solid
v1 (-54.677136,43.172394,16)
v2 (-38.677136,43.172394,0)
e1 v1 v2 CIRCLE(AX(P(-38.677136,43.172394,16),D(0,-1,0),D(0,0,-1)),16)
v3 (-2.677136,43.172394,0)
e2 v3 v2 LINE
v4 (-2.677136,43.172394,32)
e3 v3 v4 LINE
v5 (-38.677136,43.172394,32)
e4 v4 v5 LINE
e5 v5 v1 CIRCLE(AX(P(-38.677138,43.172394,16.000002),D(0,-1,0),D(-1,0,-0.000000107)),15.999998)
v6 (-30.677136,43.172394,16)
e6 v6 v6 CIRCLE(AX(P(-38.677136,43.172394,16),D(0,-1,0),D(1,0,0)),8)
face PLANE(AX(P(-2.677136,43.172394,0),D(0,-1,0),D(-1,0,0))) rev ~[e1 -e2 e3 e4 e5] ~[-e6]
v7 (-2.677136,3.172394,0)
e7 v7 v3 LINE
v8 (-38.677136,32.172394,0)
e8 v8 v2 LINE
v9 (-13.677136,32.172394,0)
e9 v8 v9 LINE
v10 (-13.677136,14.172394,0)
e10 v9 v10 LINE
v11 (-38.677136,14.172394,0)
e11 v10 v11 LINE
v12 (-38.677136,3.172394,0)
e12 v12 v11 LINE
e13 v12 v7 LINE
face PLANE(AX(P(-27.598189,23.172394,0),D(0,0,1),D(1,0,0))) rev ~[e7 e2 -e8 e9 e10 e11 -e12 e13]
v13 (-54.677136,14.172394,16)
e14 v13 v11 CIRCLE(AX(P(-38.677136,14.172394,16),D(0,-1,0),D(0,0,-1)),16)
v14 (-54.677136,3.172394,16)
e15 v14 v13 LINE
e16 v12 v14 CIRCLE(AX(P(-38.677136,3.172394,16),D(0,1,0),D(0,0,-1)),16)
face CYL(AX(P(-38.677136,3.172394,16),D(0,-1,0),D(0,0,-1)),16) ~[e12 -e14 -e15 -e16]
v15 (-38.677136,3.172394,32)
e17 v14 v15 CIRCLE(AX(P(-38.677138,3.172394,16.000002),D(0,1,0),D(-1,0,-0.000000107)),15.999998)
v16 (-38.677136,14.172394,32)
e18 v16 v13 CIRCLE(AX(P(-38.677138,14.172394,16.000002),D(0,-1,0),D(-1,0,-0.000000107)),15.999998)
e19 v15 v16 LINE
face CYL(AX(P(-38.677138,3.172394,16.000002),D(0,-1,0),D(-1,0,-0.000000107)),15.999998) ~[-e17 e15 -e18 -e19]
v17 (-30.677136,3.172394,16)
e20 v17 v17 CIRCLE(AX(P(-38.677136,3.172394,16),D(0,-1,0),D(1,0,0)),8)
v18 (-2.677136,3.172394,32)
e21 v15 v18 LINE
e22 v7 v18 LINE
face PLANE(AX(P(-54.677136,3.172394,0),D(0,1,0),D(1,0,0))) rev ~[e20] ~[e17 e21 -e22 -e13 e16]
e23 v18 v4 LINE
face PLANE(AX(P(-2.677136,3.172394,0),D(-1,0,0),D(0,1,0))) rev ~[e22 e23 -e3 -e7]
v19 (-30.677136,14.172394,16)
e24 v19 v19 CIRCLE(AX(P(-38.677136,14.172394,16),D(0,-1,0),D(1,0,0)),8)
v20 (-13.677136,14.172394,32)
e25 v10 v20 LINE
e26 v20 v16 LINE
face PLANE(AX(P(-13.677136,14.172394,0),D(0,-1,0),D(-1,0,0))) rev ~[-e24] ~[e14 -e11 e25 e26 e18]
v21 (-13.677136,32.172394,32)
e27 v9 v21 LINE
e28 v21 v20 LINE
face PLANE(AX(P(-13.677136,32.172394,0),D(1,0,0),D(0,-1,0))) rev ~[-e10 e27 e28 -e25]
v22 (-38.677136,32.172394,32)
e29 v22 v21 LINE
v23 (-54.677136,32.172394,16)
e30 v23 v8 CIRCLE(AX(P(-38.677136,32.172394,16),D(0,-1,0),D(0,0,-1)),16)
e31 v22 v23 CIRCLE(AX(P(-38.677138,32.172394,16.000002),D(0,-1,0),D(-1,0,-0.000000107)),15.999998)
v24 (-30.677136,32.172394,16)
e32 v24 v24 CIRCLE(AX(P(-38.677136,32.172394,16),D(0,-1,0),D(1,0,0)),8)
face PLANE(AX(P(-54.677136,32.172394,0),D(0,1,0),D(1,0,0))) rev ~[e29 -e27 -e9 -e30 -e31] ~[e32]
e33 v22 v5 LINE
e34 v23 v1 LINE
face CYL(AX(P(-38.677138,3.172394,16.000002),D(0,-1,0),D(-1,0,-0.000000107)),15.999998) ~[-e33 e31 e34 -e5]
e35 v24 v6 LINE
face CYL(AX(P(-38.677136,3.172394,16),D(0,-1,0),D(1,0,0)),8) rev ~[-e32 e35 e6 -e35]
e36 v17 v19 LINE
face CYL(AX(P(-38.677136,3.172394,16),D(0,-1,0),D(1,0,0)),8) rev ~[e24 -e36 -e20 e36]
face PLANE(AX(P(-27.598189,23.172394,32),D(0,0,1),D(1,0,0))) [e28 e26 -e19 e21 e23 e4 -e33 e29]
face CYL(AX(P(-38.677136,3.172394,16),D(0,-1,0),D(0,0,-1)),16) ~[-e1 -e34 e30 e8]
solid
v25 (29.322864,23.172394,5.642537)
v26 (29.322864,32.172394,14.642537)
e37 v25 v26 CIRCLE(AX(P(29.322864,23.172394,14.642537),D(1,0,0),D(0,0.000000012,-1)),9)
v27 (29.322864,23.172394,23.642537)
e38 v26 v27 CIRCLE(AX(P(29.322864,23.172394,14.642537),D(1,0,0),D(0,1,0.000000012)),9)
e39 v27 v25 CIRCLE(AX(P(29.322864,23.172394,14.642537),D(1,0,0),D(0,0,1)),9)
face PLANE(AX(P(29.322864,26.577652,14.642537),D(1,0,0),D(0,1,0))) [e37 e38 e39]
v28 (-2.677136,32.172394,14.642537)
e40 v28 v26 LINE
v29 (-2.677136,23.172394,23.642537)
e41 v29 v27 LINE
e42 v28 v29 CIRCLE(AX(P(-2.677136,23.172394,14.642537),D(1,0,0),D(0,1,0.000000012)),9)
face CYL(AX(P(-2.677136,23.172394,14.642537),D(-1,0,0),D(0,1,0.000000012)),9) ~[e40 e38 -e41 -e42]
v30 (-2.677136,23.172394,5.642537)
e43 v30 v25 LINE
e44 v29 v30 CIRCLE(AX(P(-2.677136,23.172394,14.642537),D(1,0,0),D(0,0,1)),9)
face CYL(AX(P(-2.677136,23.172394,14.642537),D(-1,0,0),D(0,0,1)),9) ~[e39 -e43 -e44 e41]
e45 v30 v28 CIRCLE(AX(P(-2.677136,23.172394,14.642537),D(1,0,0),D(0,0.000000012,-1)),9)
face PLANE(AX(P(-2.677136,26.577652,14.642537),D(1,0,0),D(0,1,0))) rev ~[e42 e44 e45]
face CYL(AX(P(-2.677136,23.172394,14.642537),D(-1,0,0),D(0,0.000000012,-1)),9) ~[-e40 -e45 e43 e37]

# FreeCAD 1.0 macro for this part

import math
import FreeCAD as App
import Part
import Sketcher

V = App.Vector


def add_polygon(sketch, points):
    """Adds a closed chain of lines whose ends are joined by coincident constraints."""
    first, n = sketch.GeometryCount, len(points)
    for a, b in zip(points, points[1:] + points[:1]):
        sketch.addGeometry(Part.LineSegment(App.Vector(*a, 0), App.Vector(*b, 0)), False)
    for i in range(n):
        sketch.addConstraint(Sketcher.Constraint("Coincident", first + i, 2, first + (i + 1) % n, 1))

doc = App.newDocument("Part")
body = doc.addObject("PartDesign::Body", "Body")

# Sketch on XY plane
sketch1 = body.newObject("Sketcher::SketchObject", "Sketch")
sketch1.AttachmentSupport = (doc.getObject("XY_Plane"), [""])
sketch1.MapMode = "FlatFace"
add_polygon(sketch1, [(-2.677136, 43.172394), (-54.677136, 43.172394), (-54.677136, 32.172394), (-13.677136, 32.172394), (-13.677136, 14.172394), (-54.677136, 14.172394), (-54.677136, 3.172394), (-2.677136, 3.172394)])  # lines 0-7
sketch1.addConstraint(Sketcher.Constraint("Horizontal", 0))
sketch1.addConstraint(Sketcher.Constraint("Vertical", 1))
sketch1.addConstraint(Sketcher.Constraint("Horizontal", 2))
sketch1.addConstraint(Sketcher.Constraint("Vertical", 3))
sketch1.addConstraint(Sketcher.Constraint("Horizontal", 4))
sketch1.addConstraint(Sketcher.Constraint("Vertical", 5))
sketch1.addConstraint(Sketcher.Constraint("Horizontal", 6))
sketch1.addConstraint(Sketcher.Constraint("Vertical", 7))
sketch1.addConstraint(Sketcher.Constraint("Vertical", 1, 2, 4, 2))
sketch1.addConstraint(Sketcher.Constraint("Equal", 1, 5))
sketch1.addConstraint(Sketcher.Constraint("DistanceX", 0, 2, 0, 1, 52.0))
sketch1.addConstraint(Sketcher.Constraint("DistanceX", 2, 1, 2, 2, 41.0))
sketch1.addConstraint(Sketcher.Constraint("DistanceY", 1, 2, 1, 1, 11.0))
sketch1.addConstraint(Sketcher.Constraint("DistanceY", 3, 2, 3, 1, 18.0))
sketch1.addConstraint(Sketcher.Constraint("DistanceX", 0, 2, -1, 1, 54.677136))
sketch1.addConstraint(Sketcher.Constraint("DistanceY", -1, 1, 0, 2, 43.172394))
pad1 = body.newObject("PartDesign::Pad", "Pad")
pad1.Profile = sketch1
pad1.Length = 32

# Sketch on XZ plane
sketch2 = body.newObject("Sketcher::SketchObject", "Sketch001")
sketch2.AttachmentSupport = (doc.getObject("XZ_Plane"), [""])
sketch2.MapMode = "FlatFace"
sketch2.AttachmentOffset = App.Placement(V(0, 0, -3.172394), App.Rotation())
sketch2.addGeometry(Part.LineSegment(V(-54.677136, 0, 0), V(-38.677136, 0, 0)), False)
sketch2.addGeometry(Part.ArcOfCircle(Part.Circle(V(-38.677136, 16, 0), V(0, 0, 1), 16), math.radians(180), math.radians(270)), False)
sketch2.addGeometry(Part.LineSegment(V(-54.677136, 16, 0), V(-54.677136, 0, 0)), False)
sketch2.addGeometry(Part.ArcOfCircle(Part.Circle(V(-38.677138, 16.000002, 0), V(0, 0, 1), 15.999998), math.radians(89.999994), math.radians(180.000006)), False)
sketch2.addGeometry(Part.LineSegment(V(-38.677136, 32, 0), V(-54.677136, 32, 0)), False)
sketch2.addGeometry(Part.LineSegment(V(-54.677136, 32, 0), V(-54.677136, 16, 0)), False)
sketch2.addGeometry(Part.Circle(V(-38.677136, 16, 0), V(0, 0, 1), 8), False)
sketch2.addConstraint(Sketcher.Constraint("Tangent", 0, 2, 1, 2))
sketch2.addConstraint(Sketcher.Constraint("Tangent", 1, 1, 2, 1))
sketch2.addConstraint(Sketcher.Constraint("Coincident", 2, 2, 0, 1))
sketch2.addConstraint(Sketcher.Constraint("Tangent", 3, 1, 4, 1))
sketch2.addConstraint(Sketcher.Constraint("Coincident", 4, 2, 5, 1))
sketch2.addConstraint(Sketcher.Constraint("Tangent", 5, 2, 3, 2))
sketch2.addConstraint(Sketcher.Constraint("Horizontal", 0))
sketch2.addConstraint(Sketcher.Constraint("Vertical", 2))
sketch2.addConstraint(Sketcher.Constraint("Horizontal", 4))
sketch2.addConstraint(Sketcher.Constraint("Vertical", 5))
sketch2.addConstraint(Sketcher.Constraint("Coincident", 3, 3, 1, 3))
sketch2.addConstraint(Sketcher.Constraint("Coincident", 6, 3, 1, 3))
sketch2.addConstraint(Sketcher.Constraint("Equal", 1, 3))
sketch2.addConstraint(Sketcher.Constraint("PointOnObject", 0, 2, -1))
sketch2.addConstraint(Sketcher.Constraint("Diameter", 6, 16.0))
sketch2.addConstraint(Sketcher.Constraint("Radius", 1, 16.0))
sketch2.addConstraint(Sketcher.Constraint("DistanceX", 1, 3, -1, 1, 38.677136))
pocket1 = body.newObject("PartDesign::Pocket", "Pocket")
pocket1.Profile = sketch2
pocket1.Length = 100
body2 = doc.addObject("PartDesign::Body", "Body001")

# Sketch on YZ plane
sketch3 = body2.newObject("Sketcher::SketchObject", "Sketch002")
sketch3.AttachmentSupport = (doc.getObject("YZ_Plane001"), [""])
sketch3.MapMode = "FlatFace"
sketch3.AttachmentOffset = App.Placement(V(0, 0, -2.677136), App.Rotation())
sketch3.addGeometry(Part.ArcOfCircle(Part.Circle(V(23.172394, 14.642537, 0), V(0, 0, 1), 9), math.radians(-89.999999), math.radians(-0.000001)), False)
sketch3.addGeometry(Part.ArcOfCircle(Part.Circle(V(23.172394, 14.642537, 0), V(0, 0, 1), 9), math.radians(0.000001), math.radians(89.999999)), False)
sketch3.addGeometry(Part.ArcOfCircle(Part.Circle(V(23.172394, 14.642537, 0), V(0, 0, 1), 9), math.radians(90), math.radians(270)), False)
sketch3.addConstraint(Sketcher.Constraint("Tangent", 0, 2, 1, 1))
sketch3.addConstraint(Sketcher.Constraint("Tangent", 1, 2, 2, 1))
sketch3.addConstraint(Sketcher.Constraint("Tangent", 2, 2, 0, 1))
sketch3.addConstraint(Sketcher.Constraint("Horizontal", 2, 3, 0, 2))
sketch3.addConstraint(Sketcher.Constraint("Vertical", 2, 3, 1, 2))
sketch3.addConstraint(Sketcher.Constraint("Vertical", 1, 2, 2, 2))
sketch3.addConstraint(Sketcher.Constraint("Radius", 0, 9.0))
sketch3.addConstraint(Sketcher.Constraint("DistanceX", -1, 1, 0, 3, 23.172394))
sketch3.addConstraint(Sketcher.Constraint("DistanceY", -1, 1, 0, 3, 14.642537))
pad2 = body2.newObject("PartDesign::Pad", "Pad001")
pad2.Profile = sketch3
pad2.Length = 32

doc.recompute()
